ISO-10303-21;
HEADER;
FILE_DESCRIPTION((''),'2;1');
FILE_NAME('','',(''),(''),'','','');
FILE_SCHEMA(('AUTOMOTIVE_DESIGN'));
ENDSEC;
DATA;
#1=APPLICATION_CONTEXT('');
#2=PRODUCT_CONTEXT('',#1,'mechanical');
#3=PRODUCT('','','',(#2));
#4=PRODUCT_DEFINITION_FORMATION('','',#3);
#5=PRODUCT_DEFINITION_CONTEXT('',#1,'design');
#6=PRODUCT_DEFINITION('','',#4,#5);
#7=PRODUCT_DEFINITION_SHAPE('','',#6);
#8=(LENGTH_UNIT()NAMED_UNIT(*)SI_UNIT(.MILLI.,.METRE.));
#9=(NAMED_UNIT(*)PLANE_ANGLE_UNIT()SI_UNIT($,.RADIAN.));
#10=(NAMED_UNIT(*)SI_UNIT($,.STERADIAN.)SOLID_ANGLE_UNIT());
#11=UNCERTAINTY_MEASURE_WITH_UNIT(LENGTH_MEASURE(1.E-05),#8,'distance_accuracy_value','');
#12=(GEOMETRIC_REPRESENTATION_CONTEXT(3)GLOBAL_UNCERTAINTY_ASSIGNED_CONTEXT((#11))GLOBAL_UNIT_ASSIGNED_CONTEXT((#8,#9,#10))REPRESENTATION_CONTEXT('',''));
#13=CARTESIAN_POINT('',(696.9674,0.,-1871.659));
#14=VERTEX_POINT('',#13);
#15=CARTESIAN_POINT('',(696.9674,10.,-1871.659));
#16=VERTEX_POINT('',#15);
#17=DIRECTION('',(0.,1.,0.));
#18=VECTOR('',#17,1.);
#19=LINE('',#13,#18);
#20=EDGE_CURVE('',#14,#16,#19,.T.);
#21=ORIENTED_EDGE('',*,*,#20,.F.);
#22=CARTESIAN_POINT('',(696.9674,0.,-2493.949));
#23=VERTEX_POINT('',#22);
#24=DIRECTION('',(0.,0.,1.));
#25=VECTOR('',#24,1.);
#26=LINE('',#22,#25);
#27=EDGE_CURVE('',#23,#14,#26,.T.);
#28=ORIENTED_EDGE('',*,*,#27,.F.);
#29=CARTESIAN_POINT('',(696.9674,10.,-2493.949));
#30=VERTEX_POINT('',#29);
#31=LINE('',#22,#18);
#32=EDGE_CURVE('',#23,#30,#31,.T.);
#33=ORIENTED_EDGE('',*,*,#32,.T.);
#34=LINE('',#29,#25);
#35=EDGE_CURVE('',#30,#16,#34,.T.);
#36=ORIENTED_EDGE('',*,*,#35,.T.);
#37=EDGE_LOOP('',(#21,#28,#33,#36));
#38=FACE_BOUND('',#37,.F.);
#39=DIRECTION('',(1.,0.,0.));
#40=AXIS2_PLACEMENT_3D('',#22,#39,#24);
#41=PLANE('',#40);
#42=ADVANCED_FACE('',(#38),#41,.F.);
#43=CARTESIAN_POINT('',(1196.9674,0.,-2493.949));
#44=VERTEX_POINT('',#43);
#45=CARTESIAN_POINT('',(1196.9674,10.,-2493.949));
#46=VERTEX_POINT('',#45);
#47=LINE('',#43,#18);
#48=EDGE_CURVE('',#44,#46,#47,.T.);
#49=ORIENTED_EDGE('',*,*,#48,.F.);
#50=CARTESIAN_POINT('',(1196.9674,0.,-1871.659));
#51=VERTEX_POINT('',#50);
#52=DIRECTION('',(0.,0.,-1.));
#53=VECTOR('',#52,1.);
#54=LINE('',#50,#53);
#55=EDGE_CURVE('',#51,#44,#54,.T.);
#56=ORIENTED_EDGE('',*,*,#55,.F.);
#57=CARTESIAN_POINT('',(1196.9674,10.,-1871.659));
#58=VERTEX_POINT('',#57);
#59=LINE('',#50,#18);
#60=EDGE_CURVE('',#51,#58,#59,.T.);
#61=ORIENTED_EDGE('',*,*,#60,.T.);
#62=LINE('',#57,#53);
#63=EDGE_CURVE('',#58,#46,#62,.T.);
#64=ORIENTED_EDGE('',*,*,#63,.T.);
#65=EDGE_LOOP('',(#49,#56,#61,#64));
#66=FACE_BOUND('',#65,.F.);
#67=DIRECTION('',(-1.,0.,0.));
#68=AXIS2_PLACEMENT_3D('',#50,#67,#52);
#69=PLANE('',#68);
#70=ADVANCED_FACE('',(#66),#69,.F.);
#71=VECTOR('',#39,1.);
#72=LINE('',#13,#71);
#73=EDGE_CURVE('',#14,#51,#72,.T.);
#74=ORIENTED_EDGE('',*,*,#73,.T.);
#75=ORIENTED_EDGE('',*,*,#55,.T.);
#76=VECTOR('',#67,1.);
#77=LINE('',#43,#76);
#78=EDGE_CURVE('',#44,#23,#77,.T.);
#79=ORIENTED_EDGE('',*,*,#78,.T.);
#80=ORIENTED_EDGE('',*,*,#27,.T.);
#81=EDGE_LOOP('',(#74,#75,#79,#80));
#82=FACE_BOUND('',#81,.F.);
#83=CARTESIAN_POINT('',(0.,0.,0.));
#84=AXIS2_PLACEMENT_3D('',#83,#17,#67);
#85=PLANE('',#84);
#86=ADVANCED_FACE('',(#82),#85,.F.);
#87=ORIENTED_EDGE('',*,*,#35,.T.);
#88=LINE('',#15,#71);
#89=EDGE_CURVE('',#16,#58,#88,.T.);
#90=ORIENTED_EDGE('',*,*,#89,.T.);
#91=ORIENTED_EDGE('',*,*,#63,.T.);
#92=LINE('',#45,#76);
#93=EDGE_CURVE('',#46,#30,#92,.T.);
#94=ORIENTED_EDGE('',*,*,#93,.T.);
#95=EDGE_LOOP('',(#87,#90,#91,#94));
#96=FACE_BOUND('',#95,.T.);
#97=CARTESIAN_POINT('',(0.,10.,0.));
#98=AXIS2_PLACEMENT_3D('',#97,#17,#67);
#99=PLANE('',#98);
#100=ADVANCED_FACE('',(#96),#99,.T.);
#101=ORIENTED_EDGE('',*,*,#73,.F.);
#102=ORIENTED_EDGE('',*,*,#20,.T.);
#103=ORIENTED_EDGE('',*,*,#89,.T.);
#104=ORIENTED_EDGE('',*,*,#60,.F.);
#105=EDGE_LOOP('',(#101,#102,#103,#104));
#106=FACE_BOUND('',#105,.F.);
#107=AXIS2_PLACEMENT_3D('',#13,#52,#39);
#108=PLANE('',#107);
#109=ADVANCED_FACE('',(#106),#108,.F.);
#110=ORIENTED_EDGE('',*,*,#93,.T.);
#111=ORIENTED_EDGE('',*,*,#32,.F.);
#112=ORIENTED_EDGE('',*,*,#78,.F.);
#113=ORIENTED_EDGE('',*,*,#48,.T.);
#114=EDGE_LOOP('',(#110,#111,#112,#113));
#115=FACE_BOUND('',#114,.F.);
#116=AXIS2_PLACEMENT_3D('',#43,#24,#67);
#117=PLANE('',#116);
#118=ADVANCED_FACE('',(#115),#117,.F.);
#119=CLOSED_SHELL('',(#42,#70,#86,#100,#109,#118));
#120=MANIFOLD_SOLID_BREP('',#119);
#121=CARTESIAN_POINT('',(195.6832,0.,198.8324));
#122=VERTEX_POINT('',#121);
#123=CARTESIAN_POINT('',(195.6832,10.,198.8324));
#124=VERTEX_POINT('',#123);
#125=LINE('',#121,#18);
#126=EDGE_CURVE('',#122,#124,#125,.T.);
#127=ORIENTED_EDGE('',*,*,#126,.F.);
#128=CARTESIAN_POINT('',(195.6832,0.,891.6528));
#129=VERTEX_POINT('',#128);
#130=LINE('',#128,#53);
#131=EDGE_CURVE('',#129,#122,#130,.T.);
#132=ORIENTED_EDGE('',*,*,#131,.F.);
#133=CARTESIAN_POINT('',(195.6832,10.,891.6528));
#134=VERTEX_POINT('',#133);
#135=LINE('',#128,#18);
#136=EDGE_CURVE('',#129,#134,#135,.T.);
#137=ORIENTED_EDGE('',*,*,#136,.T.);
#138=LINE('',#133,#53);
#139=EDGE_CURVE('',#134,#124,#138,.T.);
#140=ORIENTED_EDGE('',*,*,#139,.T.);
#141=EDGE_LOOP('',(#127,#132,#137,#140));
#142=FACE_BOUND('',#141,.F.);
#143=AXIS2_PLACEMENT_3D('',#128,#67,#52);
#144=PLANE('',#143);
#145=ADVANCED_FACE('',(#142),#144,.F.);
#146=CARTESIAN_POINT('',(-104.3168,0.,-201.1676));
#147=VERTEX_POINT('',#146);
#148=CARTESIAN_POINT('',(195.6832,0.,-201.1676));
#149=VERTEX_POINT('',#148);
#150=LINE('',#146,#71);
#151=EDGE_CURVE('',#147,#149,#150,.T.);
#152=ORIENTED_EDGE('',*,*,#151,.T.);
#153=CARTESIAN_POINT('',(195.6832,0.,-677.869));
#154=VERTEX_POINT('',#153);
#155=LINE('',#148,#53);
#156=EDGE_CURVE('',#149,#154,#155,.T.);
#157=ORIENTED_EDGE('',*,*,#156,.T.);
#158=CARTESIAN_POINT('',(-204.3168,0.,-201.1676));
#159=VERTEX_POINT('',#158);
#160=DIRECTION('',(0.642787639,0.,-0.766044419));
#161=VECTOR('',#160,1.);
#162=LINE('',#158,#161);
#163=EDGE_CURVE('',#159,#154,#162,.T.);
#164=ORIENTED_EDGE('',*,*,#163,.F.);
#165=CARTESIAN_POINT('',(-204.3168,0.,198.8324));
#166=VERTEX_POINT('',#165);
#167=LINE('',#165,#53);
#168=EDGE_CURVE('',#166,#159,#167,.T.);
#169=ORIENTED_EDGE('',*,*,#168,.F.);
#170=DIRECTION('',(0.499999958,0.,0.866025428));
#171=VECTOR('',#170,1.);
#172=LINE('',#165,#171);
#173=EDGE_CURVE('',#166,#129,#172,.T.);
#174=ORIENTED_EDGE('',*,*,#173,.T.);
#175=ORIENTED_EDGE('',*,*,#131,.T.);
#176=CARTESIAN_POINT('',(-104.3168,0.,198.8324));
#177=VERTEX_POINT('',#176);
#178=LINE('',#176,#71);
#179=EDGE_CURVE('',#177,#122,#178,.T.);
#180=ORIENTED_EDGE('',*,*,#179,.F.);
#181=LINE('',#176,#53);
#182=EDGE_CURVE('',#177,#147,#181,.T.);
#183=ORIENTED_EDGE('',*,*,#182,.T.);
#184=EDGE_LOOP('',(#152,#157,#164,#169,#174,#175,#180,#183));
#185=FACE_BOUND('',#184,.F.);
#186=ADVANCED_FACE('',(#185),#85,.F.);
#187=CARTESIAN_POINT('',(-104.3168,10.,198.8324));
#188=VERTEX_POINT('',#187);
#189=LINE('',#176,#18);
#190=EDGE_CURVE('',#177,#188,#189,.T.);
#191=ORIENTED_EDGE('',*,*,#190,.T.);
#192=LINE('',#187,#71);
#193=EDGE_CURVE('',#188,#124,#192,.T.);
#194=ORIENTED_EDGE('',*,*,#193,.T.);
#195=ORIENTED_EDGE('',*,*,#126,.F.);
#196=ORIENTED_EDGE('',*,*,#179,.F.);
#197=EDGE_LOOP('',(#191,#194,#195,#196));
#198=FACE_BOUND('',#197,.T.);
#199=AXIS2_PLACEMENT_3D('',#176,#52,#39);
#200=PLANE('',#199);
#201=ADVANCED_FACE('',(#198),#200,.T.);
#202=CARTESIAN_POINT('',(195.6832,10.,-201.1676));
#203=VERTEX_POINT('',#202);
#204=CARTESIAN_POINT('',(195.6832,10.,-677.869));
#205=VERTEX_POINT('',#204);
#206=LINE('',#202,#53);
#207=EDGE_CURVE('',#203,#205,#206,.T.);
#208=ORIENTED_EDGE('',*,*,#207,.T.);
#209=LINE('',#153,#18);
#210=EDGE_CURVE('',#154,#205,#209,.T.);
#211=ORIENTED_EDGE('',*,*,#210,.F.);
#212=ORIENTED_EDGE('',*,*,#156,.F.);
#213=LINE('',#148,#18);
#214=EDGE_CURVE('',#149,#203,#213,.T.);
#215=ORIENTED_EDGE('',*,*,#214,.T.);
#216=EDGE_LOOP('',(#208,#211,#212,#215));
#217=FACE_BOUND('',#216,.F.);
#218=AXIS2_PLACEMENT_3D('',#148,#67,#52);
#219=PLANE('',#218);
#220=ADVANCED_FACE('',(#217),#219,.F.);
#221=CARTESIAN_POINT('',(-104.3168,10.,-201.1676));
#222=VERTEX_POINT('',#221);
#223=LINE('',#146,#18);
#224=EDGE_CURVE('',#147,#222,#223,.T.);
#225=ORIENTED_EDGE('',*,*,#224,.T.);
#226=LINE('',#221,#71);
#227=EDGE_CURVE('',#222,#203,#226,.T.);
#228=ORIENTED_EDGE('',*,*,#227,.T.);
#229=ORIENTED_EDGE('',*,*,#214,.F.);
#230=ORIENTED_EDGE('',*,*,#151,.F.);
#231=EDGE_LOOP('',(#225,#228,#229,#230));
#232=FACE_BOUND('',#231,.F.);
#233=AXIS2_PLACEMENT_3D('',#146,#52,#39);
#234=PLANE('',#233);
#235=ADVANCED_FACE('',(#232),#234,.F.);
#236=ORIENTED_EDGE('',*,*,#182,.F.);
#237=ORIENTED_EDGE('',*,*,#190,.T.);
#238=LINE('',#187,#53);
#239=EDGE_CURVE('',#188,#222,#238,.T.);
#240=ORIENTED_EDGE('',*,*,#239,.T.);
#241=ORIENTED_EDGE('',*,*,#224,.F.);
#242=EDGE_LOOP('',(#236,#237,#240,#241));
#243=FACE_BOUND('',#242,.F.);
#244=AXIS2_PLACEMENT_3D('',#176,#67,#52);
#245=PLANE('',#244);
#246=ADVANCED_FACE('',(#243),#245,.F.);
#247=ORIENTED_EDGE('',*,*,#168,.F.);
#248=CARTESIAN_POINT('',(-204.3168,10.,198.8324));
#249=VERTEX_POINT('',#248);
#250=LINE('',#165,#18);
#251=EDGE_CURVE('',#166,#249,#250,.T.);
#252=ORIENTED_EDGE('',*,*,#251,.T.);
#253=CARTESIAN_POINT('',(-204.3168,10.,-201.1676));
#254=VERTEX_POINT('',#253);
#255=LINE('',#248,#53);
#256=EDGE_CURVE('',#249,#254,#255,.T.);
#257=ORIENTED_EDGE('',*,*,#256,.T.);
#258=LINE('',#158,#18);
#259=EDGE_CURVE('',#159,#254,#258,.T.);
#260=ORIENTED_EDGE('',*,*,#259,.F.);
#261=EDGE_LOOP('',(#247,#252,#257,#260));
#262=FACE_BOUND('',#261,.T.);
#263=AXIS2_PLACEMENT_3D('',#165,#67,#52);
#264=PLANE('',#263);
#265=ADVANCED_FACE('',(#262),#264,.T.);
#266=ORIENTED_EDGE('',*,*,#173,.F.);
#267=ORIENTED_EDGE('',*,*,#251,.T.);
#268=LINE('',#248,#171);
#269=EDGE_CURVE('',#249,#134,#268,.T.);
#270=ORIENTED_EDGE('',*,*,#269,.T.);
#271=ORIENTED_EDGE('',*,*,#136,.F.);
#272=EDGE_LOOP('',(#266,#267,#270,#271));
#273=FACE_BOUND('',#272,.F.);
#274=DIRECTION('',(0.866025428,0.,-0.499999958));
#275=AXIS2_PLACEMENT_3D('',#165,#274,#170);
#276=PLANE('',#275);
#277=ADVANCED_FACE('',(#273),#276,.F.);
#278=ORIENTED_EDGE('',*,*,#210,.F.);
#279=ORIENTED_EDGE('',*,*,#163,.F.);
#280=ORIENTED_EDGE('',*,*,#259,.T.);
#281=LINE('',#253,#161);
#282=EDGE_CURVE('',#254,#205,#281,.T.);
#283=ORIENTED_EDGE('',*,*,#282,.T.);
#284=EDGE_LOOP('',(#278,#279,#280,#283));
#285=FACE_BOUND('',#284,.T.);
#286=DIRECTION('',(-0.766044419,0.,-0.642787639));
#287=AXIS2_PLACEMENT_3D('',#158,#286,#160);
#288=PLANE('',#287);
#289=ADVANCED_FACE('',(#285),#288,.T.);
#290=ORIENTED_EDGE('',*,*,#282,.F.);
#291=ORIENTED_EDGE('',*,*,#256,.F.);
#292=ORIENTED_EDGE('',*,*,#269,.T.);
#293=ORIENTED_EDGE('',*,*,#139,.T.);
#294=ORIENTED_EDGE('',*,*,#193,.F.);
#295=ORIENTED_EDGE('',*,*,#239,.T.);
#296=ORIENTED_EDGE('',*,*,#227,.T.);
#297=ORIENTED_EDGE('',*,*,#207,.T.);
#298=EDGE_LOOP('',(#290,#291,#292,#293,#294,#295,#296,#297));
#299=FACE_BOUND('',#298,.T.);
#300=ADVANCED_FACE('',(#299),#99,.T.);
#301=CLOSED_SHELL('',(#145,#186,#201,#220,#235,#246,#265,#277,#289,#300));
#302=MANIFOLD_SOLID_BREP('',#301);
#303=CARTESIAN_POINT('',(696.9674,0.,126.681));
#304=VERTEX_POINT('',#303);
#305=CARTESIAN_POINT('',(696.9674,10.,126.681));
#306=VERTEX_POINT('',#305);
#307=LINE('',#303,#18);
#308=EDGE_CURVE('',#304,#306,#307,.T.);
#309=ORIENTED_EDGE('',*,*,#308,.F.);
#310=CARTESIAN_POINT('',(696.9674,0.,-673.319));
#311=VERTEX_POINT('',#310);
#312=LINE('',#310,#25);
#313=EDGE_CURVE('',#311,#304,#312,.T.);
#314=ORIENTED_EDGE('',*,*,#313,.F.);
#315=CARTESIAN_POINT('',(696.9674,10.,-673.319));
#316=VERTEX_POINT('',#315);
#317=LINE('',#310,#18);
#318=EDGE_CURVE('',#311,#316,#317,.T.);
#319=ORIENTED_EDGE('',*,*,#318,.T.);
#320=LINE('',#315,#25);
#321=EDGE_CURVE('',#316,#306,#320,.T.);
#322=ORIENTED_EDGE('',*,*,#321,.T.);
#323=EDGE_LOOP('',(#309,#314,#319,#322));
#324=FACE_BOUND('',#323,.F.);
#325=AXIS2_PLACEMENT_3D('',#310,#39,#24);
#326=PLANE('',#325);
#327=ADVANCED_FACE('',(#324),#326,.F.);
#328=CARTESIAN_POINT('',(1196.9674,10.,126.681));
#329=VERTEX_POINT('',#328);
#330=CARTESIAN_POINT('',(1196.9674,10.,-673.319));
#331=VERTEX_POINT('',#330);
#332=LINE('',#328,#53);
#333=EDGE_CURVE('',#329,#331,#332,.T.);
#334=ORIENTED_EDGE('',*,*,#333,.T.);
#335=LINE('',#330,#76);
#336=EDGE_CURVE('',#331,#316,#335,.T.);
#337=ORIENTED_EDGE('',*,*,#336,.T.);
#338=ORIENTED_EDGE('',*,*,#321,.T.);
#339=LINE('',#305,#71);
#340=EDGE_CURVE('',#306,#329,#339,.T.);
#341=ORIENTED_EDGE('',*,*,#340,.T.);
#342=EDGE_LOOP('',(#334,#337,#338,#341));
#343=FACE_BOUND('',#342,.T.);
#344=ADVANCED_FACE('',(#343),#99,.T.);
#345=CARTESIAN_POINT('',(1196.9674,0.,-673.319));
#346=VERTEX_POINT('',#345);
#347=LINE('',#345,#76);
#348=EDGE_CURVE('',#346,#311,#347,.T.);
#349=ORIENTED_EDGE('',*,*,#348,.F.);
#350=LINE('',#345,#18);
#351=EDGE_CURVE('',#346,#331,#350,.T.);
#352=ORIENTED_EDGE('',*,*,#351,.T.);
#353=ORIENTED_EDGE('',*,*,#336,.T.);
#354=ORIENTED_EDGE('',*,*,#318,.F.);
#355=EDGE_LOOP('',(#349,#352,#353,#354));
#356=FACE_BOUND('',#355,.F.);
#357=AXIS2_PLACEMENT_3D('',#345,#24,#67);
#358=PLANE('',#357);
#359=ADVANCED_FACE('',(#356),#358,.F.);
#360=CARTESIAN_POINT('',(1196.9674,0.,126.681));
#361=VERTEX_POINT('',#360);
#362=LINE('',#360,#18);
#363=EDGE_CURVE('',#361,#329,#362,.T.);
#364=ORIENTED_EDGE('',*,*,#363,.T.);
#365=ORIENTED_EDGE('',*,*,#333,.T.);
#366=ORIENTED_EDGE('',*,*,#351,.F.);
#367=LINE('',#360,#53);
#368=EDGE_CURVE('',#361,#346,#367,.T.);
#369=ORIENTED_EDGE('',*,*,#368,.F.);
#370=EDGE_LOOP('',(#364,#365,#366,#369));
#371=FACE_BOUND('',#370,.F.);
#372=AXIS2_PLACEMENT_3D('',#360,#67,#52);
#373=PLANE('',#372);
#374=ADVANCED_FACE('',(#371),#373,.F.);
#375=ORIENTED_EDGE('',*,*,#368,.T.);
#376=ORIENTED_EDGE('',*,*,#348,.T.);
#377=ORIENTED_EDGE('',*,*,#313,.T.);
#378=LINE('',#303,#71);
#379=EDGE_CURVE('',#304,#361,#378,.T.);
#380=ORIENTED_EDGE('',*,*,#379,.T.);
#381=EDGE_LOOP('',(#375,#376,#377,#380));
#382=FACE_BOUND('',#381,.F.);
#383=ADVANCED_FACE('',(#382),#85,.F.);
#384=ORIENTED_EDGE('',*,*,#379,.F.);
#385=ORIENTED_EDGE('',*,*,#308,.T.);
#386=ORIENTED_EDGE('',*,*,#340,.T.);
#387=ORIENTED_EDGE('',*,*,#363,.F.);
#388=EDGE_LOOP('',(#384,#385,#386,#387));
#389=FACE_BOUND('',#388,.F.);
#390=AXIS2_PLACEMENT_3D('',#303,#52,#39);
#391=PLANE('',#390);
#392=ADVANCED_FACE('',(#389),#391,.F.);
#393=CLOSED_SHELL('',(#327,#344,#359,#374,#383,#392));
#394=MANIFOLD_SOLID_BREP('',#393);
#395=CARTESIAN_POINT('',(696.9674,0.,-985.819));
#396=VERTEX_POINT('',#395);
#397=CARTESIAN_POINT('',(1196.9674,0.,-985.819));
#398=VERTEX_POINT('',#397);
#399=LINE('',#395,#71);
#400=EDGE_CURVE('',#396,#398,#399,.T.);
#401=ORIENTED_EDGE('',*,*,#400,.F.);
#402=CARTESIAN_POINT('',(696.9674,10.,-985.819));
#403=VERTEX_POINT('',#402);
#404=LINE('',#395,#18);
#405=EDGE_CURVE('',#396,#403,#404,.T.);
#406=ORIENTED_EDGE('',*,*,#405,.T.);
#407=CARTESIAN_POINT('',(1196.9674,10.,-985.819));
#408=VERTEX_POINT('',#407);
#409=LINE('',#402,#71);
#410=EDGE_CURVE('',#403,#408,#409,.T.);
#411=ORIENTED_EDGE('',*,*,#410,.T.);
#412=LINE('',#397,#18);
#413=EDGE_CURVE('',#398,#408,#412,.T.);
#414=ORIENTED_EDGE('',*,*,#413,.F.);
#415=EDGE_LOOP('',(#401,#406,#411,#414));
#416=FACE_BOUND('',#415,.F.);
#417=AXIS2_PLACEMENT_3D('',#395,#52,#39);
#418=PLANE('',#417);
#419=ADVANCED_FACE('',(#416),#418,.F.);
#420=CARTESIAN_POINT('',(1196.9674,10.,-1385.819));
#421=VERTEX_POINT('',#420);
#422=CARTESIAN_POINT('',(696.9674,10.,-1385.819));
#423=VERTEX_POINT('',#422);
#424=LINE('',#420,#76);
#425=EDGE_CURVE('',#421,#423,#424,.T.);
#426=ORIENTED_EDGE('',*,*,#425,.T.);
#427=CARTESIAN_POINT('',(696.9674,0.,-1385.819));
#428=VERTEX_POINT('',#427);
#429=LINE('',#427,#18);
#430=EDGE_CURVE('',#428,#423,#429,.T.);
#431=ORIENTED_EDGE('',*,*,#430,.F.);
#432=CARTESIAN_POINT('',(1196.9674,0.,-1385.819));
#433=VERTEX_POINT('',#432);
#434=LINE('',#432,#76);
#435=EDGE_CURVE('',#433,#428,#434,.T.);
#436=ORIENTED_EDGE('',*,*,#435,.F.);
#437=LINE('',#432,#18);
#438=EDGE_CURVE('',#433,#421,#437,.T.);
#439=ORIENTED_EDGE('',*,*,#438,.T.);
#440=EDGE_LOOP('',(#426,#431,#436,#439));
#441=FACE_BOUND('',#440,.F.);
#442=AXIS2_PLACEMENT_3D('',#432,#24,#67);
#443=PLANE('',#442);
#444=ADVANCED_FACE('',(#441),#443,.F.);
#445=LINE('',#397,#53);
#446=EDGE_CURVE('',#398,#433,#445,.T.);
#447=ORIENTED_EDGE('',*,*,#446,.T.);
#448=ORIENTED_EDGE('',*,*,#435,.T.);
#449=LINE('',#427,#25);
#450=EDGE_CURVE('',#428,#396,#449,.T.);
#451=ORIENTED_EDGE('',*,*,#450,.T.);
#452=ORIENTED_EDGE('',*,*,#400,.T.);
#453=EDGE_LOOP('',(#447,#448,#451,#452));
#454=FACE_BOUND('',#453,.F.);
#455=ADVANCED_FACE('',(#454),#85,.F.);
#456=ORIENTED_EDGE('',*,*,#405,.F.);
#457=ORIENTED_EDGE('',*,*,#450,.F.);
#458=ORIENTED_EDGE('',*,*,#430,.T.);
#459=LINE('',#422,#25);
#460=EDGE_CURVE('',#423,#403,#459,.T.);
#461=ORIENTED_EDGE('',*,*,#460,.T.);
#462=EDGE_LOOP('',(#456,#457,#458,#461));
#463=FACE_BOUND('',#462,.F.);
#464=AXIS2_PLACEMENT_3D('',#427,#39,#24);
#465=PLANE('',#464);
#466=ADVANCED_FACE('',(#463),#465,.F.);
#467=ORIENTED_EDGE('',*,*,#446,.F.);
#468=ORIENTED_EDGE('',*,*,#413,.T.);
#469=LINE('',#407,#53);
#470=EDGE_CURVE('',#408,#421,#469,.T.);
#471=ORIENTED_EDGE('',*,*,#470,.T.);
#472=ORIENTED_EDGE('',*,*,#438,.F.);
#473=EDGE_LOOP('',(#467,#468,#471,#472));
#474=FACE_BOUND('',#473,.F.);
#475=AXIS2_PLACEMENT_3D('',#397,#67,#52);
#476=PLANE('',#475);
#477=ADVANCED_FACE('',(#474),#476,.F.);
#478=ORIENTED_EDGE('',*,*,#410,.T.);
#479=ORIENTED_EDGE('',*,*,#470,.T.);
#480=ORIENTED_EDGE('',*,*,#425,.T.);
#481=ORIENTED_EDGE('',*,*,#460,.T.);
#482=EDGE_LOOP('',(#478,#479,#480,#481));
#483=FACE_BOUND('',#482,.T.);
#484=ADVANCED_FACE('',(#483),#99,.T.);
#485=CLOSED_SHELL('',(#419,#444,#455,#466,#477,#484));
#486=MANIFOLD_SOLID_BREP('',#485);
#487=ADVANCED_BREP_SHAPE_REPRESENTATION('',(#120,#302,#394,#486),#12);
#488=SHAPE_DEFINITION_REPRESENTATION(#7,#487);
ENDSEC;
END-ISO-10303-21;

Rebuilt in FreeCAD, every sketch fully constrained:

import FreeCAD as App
import Part
import Sketcher

V = App.Vector
Q = App.Units.Quantity

doc = App.newDocument("Part")
body = doc.addObject("PartDesign::Body", "Body")
body.AllowCompound = True

sketch1 = body.newObject("Sketcher::SketchObject", "Sketch")
sketch1.AttachmentSupport = (doc.getObject("XZ_Plane"), [""])
sketch1.MapMode = "FlatFace"
sketch1.addGeometry([
    Part.LineSegment(V(196, 199, 0), V(-104, 199, 0)),
    Part.LineSegment(V(-104, 199, 0), V(-104, -201, 0)),
    Part.LineSegment(V(-104, -201, 0), V(196, -201, 0)),
    Part.LineSegment(V(196, -201, 0), V(196, -678, 0)),
    Part.LineSegment(V(196, -678, 0), V(-204, -201, 0)),
    Part.LineSegment(V(-204, -201, 0), V(-204, 199, 0)),
    Part.LineSegment(V(-204, 199, 0), V(196, 892, 0)),
    Part.LineSegment(V(196, 892, 0), V(196, 199, 0)),
    Part.LineSegment(V(697, -673, 0), V(697, 127, 0)),
    Part.LineSegment(V(697, 127, 0), V(1197, 127, 0)),
    Part.LineSegment(V(1197, 127, 0), V(1197, -673, 0)),
    Part.LineSegment(V(1197, -673, 0), V(697, -673, 0)),
    Part.LineSegment(V(1197, -986, 0), V(1197, -1386, 0)),
    Part.LineSegment(V(1197, -1386, 0), V(697, -1386, 0)),
    Part.LineSegment(V(697, -1386, 0), V(697, -986, 0)),
    Part.LineSegment(V(697, -986, 0), V(1197, -986, 0)),
    Part.LineSegment(V(1197, -1872, 0), V(1197, -2494, 0)),
    Part.LineSegment(V(1197, -2494, 0), V(697, -2494, 0)),
    Part.LineSegment(V(697, -2494, 0), V(697, -1872, 0)),
    Part.LineSegment(V(697, -1872, 0), V(1197, -1872, 0)),
], False)
sketch1.addConstraint([
    Sketcher.Constraint("Coincident", 0, 2, 1, 1),
    Sketcher.Constraint("Coincident", 1, 2, 2, 1),
    Sketcher.Constraint("Coincident", 2, 2, 3, 1),
    Sketcher.Constraint("Coincident", 3, 2, 4, 1),
    Sketcher.Constraint("Coincident", 4, 2, 5, 1),
    Sketcher.Constraint("Coincident", 5, 2, 6, 1),
    Sketcher.Constraint("Coincident", 6, 2, 7, 1),
    Sketcher.Constraint("Coincident", 7, 2, 0, 1),
    Sketcher.Constraint("Coincident", 8, 2, 9, 1),
    Sketcher.Constraint("Coincident", 9, 2, 10, 1),
    Sketcher.Constraint("Coincident", 10, 2, 11, 1),
    Sketcher.Constraint("Coincident", 11, 2, 8, 1),
    Sketcher.Constraint("Coincident", 12, 2, 13, 1),
    Sketcher.Constraint("Coincident", 13, 2, 14, 1),
    Sketcher.Constraint("Coincident", 14, 2, 15, 1),
    Sketcher.Constraint("Coincident", 15, 2, 12, 1),
    Sketcher.Constraint("Coincident", 16, 2, 17, 1),
    Sketcher.Constraint("Coincident", 17, 2, 18, 1),
    Sketcher.Constraint("Coincident", 18, 2, 19, 1),
    Sketcher.Constraint("Coincident", 19, 2, 16, 1),
    Sketcher.Constraint("Horizontal", 0),
    Sketcher.Constraint("Vertical", 1),
    Sketcher.Constraint("Horizontal", 2),
    Sketcher.Constraint("Vertical", 3),
    Sketcher.Constraint("Vertical", 5),
    Sketcher.Constraint("Vertical", 7),
    Sketcher.Constraint("Vertical", 8),
    Sketcher.Constraint("Horizontal", 9),
    Sketcher.Constraint("Vertical", 10),
    Sketcher.Constraint("Horizontal", 11),
    Sketcher.Constraint("Vertical", 12),
    Sketcher.Constraint("Horizontal", 13),
    Sketcher.Constraint("Vertical", 14),
    Sketcher.Constraint("Horizontal", 15),
    Sketcher.Constraint("Vertical", 16),
    Sketcher.Constraint("Horizontal", 17),
    Sketcher.Constraint("Vertical", 18),
    Sketcher.Constraint("Horizontal", 19),
    Sketcher.Constraint("Horizontal", 2, 2, 4, 2),
    Sketcher.Constraint("Horizontal", 0, 2, 5, 2),
    Sketcher.Constraint("Vertical", 3, 2, 6, 2),
    Sketcher.Constraint("Vertical", 10, 2, 12, 2),
    Sketcher.Constraint("Vertical", 11, 2, 13, 2),
    Sketcher.Constraint("Vertical", 15, 2, 16, 2),
    Sketcher.Constraint("Vertical", 14, 2, 17, 2),
    Sketcher.Constraint("Equal", 5, 12),
    Sketcher.Constraint("DistanceX", 9, 1, 9, 2, 500.0),
    Sketcher.Constraint("DistanceY", 1, 2, 1, 1, 400.0),
    Sketcher.Constraint("DistanceY", 8, 1, 8, 2, 800.0),
    Sketcher.Constraint("Distance", 6, 800.0),
    Sketcher.Constraint("DistanceX", 4, 2, 1, 2, 100.0),
    Sketcher.Constraint("DistanceX", 4, 2, 2, 2, 400.0),
    Sketcher.Constraint("DistanceY", 16, 2, 16, 1, 622.29),
    Sketcher.Constraint("Angle", 4, Q("130 deg")),
    Sketcher.Constraint("DistanceY", 12, 2, 10, 2, 712.5),
    Sketcher.Constraint("DistanceY", 3, 2, 9, 2, 804.55),
    Sketcher.Constraint("DistanceY", 16, 2, 12, 2, 1108.13),
    Sketcher.Constraint("DistanceY", 3, 2, -1, 1, 677.869),
    Sketcher.Constraint("DistanceX", 0, 2, -1, 1, 104.3168),
    Sketcher.Constraint("DistanceX", -1, 1, 8, 2, 696.9674),
])
pad1 = body.newObject("PartDesign::Pad", "Pad")
pad1.Profile = sketch1
pad1.Length = 10
pad1.Reversed = True

doc.recompute()
